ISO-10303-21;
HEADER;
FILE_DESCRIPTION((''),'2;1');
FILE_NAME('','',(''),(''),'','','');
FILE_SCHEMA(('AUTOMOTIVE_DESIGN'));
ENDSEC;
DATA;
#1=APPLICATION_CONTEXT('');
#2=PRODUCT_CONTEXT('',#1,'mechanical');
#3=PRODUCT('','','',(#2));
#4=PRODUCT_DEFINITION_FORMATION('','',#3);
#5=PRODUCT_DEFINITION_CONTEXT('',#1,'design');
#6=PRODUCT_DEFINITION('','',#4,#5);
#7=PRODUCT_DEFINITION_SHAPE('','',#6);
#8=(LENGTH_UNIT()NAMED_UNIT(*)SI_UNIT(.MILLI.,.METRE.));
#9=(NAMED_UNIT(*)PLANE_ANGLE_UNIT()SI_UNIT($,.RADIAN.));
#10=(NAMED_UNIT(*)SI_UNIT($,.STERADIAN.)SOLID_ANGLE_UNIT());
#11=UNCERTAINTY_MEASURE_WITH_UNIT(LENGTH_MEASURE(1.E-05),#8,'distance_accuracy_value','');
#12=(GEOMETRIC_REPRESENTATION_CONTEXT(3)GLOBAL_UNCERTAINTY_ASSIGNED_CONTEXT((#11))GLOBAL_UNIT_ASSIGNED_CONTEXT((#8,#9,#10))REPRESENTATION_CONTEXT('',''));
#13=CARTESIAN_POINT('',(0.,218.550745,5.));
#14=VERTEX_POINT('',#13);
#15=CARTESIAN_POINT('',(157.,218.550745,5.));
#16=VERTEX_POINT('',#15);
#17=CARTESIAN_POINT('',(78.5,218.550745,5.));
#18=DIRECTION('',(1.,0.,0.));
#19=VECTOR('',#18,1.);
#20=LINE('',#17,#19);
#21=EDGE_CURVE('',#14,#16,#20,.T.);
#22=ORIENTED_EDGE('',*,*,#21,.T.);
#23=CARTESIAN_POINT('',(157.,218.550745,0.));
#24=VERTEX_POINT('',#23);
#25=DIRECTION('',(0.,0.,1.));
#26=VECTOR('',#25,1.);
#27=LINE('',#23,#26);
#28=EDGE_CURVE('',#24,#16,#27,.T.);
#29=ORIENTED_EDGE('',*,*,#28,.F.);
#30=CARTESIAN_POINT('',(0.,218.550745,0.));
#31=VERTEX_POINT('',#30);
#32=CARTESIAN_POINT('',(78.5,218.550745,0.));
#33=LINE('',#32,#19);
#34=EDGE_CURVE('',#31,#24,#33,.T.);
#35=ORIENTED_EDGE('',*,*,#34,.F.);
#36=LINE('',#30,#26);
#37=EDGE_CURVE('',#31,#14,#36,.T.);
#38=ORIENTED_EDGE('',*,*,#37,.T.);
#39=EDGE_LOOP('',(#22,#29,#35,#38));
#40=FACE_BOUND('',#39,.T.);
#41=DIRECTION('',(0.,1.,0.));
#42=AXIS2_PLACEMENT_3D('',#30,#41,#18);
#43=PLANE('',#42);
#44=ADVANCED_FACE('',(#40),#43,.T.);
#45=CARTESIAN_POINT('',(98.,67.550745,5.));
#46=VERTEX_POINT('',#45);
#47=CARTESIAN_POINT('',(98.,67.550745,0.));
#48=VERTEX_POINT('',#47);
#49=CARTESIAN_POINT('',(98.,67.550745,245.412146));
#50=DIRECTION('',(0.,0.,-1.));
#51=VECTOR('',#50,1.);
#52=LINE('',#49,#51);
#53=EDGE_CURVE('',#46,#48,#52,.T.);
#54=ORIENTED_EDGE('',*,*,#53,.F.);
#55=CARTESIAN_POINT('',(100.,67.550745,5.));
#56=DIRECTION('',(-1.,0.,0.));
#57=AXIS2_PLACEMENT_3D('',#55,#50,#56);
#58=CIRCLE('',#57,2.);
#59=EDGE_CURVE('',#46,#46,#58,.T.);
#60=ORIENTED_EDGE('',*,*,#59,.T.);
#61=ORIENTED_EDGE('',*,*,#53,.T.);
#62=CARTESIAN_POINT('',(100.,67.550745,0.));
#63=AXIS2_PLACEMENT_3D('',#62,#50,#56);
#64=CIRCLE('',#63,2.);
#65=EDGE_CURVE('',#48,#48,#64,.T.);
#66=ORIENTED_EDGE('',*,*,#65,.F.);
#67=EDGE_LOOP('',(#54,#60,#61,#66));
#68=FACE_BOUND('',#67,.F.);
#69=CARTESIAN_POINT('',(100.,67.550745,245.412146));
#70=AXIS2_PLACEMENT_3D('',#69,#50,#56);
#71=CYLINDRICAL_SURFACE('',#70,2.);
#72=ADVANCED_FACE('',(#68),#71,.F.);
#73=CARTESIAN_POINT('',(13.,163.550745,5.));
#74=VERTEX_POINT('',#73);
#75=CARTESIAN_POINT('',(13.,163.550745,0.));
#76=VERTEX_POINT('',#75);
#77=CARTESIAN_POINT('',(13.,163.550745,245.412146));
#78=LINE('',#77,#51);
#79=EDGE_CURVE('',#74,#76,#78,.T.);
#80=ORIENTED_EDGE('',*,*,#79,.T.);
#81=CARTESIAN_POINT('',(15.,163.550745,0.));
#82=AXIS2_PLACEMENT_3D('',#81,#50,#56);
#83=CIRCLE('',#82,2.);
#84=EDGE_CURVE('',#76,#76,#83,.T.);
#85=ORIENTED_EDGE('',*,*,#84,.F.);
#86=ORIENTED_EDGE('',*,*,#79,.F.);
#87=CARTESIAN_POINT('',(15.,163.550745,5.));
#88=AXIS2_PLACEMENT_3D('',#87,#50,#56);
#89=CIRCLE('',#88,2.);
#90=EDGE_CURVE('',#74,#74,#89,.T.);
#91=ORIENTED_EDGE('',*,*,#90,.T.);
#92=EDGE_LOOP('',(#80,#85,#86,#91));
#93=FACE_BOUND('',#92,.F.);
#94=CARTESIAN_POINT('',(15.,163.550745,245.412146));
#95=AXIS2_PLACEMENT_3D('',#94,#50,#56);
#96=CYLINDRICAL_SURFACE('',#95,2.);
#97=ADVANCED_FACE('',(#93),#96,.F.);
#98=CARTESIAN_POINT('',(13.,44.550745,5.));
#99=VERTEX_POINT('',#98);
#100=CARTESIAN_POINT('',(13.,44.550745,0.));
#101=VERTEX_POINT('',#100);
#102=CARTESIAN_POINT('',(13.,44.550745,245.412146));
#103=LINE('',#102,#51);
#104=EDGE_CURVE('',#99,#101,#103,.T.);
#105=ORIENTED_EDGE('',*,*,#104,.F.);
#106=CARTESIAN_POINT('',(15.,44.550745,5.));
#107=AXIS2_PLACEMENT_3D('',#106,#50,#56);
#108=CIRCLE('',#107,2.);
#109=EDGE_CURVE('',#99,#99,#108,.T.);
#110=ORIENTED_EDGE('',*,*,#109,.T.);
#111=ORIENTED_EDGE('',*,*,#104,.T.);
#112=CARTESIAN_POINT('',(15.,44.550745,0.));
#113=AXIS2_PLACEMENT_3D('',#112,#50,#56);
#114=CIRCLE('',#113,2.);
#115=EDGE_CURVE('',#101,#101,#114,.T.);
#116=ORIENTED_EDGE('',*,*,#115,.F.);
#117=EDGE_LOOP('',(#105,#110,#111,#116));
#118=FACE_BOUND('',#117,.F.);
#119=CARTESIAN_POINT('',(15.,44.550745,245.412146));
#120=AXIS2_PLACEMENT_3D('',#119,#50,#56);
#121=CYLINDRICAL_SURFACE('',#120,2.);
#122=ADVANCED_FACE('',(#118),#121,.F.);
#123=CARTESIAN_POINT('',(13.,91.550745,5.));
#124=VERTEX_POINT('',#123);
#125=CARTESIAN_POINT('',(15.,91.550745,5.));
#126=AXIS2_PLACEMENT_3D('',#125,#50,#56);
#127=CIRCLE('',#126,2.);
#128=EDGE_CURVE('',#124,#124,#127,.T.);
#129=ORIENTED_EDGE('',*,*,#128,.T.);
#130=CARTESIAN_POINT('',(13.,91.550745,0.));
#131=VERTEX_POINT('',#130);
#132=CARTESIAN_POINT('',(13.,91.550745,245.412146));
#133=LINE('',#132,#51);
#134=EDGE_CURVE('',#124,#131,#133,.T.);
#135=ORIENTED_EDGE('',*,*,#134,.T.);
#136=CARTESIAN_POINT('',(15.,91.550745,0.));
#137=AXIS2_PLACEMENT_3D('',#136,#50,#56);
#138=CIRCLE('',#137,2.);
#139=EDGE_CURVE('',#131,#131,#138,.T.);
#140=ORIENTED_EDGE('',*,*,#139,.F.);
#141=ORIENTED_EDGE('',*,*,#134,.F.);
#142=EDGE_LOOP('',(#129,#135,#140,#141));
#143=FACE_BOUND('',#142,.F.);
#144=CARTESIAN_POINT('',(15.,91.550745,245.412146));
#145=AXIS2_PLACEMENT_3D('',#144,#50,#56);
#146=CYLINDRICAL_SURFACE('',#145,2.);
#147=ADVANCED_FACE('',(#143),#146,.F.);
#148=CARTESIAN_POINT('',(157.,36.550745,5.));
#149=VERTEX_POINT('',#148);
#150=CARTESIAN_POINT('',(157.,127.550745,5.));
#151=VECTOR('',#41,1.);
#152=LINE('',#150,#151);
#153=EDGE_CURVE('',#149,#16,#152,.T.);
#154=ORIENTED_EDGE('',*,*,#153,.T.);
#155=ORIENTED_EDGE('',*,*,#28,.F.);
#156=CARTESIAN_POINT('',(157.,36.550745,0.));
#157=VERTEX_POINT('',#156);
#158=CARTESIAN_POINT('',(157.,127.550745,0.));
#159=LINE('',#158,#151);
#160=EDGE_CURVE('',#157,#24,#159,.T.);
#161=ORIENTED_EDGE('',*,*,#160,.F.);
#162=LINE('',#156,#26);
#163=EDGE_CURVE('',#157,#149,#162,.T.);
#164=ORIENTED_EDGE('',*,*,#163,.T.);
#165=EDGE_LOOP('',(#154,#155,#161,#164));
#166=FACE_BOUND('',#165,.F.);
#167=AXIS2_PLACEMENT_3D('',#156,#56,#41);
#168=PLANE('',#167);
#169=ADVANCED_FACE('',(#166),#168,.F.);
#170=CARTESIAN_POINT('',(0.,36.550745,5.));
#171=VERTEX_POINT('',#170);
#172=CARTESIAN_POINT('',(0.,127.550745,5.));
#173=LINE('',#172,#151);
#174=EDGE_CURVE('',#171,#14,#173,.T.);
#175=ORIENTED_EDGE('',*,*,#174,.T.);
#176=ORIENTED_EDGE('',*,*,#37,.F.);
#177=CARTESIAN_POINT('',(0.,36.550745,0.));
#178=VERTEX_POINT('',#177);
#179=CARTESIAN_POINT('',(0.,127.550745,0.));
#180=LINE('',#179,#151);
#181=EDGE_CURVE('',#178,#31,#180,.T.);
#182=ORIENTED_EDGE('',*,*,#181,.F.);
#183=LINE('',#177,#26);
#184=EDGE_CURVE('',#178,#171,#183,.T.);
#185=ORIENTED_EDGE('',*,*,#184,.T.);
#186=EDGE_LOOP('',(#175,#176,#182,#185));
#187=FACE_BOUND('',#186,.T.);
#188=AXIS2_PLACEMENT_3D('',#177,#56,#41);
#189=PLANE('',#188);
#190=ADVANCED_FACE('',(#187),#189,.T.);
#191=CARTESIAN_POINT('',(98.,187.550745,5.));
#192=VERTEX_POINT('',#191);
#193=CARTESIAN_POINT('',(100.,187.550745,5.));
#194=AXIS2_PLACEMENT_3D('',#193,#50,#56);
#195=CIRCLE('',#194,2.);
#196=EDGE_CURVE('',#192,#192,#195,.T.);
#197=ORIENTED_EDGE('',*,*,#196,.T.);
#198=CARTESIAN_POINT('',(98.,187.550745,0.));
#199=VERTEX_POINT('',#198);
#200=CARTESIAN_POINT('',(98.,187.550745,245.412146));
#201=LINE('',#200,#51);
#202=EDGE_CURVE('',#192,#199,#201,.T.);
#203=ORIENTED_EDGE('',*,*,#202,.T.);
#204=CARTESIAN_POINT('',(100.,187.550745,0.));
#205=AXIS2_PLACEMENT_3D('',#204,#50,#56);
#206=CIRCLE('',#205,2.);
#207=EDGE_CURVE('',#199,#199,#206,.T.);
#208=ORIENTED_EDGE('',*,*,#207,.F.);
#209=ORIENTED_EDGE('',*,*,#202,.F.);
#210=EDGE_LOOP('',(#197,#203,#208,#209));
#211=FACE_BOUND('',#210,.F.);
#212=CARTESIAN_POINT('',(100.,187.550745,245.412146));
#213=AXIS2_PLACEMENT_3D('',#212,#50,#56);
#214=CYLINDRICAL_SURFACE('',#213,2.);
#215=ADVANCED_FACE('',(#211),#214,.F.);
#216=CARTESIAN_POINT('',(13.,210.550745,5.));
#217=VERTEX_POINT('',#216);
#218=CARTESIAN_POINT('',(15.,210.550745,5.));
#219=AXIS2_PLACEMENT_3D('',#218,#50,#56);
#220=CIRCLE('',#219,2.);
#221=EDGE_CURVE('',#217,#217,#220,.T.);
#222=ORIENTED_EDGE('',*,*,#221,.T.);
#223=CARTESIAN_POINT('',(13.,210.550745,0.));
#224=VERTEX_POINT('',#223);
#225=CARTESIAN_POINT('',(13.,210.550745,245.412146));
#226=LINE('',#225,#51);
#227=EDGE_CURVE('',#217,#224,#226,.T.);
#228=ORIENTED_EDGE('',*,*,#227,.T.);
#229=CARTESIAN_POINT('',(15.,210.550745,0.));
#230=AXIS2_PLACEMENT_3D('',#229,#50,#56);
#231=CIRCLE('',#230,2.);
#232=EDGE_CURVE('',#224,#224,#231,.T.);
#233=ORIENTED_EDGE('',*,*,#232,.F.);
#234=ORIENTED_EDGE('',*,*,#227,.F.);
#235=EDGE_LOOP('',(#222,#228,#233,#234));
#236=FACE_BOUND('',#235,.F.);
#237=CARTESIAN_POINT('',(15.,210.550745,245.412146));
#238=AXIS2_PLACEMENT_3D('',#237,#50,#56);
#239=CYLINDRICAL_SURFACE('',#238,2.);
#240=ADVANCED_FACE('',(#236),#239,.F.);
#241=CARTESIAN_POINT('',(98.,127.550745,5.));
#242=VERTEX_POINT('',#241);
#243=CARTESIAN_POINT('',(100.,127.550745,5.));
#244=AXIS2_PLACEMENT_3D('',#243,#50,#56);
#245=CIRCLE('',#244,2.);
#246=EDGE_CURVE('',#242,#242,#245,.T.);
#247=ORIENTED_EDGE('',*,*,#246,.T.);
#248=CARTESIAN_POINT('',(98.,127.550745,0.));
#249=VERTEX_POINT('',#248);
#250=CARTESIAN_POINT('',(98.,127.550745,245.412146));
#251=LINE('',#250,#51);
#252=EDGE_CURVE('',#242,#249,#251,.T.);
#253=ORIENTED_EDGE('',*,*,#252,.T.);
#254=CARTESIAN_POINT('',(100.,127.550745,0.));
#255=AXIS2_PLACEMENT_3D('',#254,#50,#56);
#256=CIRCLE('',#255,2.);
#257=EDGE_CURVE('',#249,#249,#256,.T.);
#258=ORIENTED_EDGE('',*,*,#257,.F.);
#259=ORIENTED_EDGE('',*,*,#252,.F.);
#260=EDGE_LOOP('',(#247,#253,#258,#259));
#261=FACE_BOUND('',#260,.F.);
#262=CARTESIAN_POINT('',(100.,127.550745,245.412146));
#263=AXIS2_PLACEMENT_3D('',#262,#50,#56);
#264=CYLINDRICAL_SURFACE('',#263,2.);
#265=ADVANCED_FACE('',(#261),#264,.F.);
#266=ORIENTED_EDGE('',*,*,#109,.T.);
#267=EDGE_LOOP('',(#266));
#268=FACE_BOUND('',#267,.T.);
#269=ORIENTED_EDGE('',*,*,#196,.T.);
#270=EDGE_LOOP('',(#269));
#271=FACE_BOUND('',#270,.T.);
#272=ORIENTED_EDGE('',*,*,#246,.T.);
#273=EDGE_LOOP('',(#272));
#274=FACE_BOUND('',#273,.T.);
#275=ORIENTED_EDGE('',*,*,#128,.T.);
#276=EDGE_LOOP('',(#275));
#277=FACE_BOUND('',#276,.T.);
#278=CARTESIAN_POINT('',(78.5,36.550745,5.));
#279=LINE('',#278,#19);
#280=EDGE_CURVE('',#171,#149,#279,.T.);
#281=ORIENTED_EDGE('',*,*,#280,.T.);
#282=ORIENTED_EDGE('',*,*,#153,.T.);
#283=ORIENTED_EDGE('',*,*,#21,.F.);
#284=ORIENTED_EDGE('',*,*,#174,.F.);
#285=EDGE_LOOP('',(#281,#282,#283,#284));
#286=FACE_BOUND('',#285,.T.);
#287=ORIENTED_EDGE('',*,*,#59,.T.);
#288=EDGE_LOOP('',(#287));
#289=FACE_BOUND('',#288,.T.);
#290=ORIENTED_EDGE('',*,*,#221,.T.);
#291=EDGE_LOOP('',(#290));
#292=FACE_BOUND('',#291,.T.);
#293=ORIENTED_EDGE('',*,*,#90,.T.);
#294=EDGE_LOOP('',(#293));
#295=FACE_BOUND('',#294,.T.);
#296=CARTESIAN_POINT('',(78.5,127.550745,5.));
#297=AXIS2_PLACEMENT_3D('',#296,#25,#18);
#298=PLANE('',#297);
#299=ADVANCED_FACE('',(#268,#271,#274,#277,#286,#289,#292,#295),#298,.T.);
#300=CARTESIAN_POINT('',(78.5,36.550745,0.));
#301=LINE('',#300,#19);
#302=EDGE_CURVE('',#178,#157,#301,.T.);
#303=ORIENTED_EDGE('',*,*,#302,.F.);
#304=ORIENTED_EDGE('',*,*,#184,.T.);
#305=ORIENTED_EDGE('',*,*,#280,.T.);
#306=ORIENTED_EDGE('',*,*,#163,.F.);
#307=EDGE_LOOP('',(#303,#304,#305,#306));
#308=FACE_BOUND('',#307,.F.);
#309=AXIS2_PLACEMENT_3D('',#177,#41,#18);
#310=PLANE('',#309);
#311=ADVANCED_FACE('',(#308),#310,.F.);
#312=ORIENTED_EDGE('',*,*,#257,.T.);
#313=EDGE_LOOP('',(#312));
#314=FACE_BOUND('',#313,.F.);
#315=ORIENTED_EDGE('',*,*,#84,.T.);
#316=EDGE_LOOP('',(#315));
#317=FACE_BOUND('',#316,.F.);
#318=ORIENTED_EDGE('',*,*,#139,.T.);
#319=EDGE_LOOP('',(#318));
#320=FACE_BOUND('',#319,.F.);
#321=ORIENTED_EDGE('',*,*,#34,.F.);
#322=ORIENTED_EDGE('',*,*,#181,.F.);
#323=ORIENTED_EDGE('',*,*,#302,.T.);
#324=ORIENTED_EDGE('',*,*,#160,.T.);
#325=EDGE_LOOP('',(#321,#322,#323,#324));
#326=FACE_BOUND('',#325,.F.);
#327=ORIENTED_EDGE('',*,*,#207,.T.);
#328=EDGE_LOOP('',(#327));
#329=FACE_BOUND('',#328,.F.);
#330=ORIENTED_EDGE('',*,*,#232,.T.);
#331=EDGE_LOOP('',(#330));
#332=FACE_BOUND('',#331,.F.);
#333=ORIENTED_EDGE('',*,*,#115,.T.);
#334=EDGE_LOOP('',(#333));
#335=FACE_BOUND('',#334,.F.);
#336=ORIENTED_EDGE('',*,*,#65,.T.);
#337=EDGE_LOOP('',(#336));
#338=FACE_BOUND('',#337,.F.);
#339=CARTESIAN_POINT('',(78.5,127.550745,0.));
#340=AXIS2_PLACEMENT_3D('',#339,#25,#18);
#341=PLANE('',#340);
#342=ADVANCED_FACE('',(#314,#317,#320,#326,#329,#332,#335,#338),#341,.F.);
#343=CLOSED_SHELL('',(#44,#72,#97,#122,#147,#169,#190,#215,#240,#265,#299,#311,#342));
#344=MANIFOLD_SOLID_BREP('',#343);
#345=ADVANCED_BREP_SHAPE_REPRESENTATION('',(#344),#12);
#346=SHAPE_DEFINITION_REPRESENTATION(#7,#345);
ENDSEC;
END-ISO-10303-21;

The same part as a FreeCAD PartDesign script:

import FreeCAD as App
import Part
import Sketcher
Q = App.Units.Quantity

doc = App.newDocument("Part")
body = doc.addObject("PartDesign::Body", "Body")

sketch1 = doc.addObject("Sketcher::SketchObject", "Sketch")
body.addObject(sketch1)
sketch1.AttachmentSupport = (doc.XY_Plane, [""])
sketch1.MapMode = "FlatFace"
sketch1.addGeometry([
    Part.LineSegment(App.Vector(0, 218.550745, 0), App.Vector(0, 36.550745, 0)),
    Part.LineSegment(App.Vector(0, 36.550745, 0), App.Vector(157, 36.550745, 0)),
    Part.LineSegment(App.Vector(157, 36.550745, 0), App.Vector(157, 218.550745, 0)),
    Part.LineSegment(App.Vector(157, 218.550745, 0), App.Vector(0, 218.550745, 0)),
], False)
sketch1.addConstraint([
    Sketcher.Constraint("Coincident", 0, 2, 1, 1),
    Sketcher.Constraint("Coincident", 1, 2, 2, 1),
    Sketcher.Constraint("Coincident", 2, 2, 3, 1),
    Sketcher.Constraint("Coincident", 3, 2, 0, 1),
    Sketcher.Constraint("Vertical", 0),
    Sketcher.Constraint("Horizontal", 1),
    Sketcher.Constraint("Vertical", 2),
    Sketcher.Constraint("Horizontal", 3),
    Sketcher.Constraint("PointOnObject", 0, 2, -2),
    Sketcher.Constraint("DistanceX", 1, 1, 1, 2, Q("157 mm")),
    Sketcher.Constraint("DistanceY", 0, 2, 0, 1, Q("182 mm")),
    Sketcher.Constraint("DistanceY", -1, 1, 0, 2, Q("36.550745 mm")),
])
pad1 = doc.addObject("PartDesign::Pad", "Pad")
body.addObject(pad1)
pad1.Profile = sketch1
pad1.Length = 5

sketch2 = doc.addObject("Sketcher::SketchObject", "Sketch001")
body.addObject(sketch2)
sketch2.AttachmentSupport = (doc.XY_Plane, [""])
sketch2.MapMode = "FlatFace"
sketch2.AttachmentOffset = App.Placement(App.Vector(0, 0, 5), App.Rotation())
sketch2.addGeometry([
    Part.Circle(App.Vector(15, 210.550745, 0), App.Vector(0, 0, 1), 2),
    Part.Circle(App.Vector(15, 163.550745, 0), App.Vector(0, 0, 1), 2),
    Part.Circle(App.Vector(15, 91.550745, 0), App.Vector(0, 0, 1), 2),
    Part.Circle(App.Vector(15, 44.550745, 0), App.Vector(0, 0, 1), 2),
    Part.Circle(App.Vector(100, 67.550745, 0), App.Vector(0, 0, 1), 2),
    Part.Circle(App.Vector(100, 127.550745, 0), App.Vector(0, 0, 1), 2),
    Part.Circle(App.Vector(100, 127.550745, 0), App.Vector(0, 0, 1), 2),
    Part.Circle(App.Vector(100, 187.550745, 0), App.Vector(0, 0, 1), 2),
], False)
sketch2.addConstraint([
    Sketcher.Constraint("Coincident", 6, 3, 5, 3),
    Sketcher.Constraint("Equal", 0, 1),
    Sketcher.Constraint("Equal", 1, 2),
    Sketcher.Constraint("Equal", 2, 3),
    Sketcher.Constraint("Equal", 3, 4),
    Sketcher.Constraint("Equal", 4, 5),
    Sketcher.Constraint("Equal", 5, 6),
    Sketcher.Constraint("Equal", 6, 7),
    Sketcher.Constraint("Vertical", 0, 3, 1, 3),
    Sketcher.Constraint("Vertical", 1, 3, 2, 3),
    Sketcher.Constraint("Vertical", 2, 3, 3, 3),
    Sketcher.Constraint("Vertical", 4, 3, 5, 3),
    Sketcher.Constraint("Vertical", 6, 3, 7, 3),
    Sketcher.Constraint("Diameter", 0, Q("4 mm")),
    Sketcher.Constraint("DistanceX", -1, 1, 0, 3, Q("15 mm")),
    Sketcher.Constraint("DistanceX", -1, 1, 4, 3, Q("100 mm")),
    Sketcher.Constraint("DistanceY", 1, 3, 0, 3, Q("47 mm")),
    Sketcher.Constraint("DistanceY", 2, 3, 1, 3, Q("72 mm")),
    Sketcher.Constraint("DistanceY", 3, 3, 2, 3, Q("47 mm")),
    Sketcher.Constraint("DistanceY", 3, 3, 4, 3, Q("23 mm")),
    Sketcher.Constraint("DistanceY", 4, 3, 5, 3, Q("60 mm")),
    Sketcher.Constraint("DistanceY", 5, 3, 7, 3, Q("60 mm")),
    Sketcher.Constraint("DistanceY", -1, 1, 0, 3, Q("210.550745 mm")),
])
doc.recompute()
hole = doc.addObject("PartDesign::Hole", "Hole")
body.addObject(hole)
hole.Profile = sketch2
hole.ThreadType = "None"
hole.Diameter = 4
hole.DepthType = "ThroughAll"

doc.recompute()
